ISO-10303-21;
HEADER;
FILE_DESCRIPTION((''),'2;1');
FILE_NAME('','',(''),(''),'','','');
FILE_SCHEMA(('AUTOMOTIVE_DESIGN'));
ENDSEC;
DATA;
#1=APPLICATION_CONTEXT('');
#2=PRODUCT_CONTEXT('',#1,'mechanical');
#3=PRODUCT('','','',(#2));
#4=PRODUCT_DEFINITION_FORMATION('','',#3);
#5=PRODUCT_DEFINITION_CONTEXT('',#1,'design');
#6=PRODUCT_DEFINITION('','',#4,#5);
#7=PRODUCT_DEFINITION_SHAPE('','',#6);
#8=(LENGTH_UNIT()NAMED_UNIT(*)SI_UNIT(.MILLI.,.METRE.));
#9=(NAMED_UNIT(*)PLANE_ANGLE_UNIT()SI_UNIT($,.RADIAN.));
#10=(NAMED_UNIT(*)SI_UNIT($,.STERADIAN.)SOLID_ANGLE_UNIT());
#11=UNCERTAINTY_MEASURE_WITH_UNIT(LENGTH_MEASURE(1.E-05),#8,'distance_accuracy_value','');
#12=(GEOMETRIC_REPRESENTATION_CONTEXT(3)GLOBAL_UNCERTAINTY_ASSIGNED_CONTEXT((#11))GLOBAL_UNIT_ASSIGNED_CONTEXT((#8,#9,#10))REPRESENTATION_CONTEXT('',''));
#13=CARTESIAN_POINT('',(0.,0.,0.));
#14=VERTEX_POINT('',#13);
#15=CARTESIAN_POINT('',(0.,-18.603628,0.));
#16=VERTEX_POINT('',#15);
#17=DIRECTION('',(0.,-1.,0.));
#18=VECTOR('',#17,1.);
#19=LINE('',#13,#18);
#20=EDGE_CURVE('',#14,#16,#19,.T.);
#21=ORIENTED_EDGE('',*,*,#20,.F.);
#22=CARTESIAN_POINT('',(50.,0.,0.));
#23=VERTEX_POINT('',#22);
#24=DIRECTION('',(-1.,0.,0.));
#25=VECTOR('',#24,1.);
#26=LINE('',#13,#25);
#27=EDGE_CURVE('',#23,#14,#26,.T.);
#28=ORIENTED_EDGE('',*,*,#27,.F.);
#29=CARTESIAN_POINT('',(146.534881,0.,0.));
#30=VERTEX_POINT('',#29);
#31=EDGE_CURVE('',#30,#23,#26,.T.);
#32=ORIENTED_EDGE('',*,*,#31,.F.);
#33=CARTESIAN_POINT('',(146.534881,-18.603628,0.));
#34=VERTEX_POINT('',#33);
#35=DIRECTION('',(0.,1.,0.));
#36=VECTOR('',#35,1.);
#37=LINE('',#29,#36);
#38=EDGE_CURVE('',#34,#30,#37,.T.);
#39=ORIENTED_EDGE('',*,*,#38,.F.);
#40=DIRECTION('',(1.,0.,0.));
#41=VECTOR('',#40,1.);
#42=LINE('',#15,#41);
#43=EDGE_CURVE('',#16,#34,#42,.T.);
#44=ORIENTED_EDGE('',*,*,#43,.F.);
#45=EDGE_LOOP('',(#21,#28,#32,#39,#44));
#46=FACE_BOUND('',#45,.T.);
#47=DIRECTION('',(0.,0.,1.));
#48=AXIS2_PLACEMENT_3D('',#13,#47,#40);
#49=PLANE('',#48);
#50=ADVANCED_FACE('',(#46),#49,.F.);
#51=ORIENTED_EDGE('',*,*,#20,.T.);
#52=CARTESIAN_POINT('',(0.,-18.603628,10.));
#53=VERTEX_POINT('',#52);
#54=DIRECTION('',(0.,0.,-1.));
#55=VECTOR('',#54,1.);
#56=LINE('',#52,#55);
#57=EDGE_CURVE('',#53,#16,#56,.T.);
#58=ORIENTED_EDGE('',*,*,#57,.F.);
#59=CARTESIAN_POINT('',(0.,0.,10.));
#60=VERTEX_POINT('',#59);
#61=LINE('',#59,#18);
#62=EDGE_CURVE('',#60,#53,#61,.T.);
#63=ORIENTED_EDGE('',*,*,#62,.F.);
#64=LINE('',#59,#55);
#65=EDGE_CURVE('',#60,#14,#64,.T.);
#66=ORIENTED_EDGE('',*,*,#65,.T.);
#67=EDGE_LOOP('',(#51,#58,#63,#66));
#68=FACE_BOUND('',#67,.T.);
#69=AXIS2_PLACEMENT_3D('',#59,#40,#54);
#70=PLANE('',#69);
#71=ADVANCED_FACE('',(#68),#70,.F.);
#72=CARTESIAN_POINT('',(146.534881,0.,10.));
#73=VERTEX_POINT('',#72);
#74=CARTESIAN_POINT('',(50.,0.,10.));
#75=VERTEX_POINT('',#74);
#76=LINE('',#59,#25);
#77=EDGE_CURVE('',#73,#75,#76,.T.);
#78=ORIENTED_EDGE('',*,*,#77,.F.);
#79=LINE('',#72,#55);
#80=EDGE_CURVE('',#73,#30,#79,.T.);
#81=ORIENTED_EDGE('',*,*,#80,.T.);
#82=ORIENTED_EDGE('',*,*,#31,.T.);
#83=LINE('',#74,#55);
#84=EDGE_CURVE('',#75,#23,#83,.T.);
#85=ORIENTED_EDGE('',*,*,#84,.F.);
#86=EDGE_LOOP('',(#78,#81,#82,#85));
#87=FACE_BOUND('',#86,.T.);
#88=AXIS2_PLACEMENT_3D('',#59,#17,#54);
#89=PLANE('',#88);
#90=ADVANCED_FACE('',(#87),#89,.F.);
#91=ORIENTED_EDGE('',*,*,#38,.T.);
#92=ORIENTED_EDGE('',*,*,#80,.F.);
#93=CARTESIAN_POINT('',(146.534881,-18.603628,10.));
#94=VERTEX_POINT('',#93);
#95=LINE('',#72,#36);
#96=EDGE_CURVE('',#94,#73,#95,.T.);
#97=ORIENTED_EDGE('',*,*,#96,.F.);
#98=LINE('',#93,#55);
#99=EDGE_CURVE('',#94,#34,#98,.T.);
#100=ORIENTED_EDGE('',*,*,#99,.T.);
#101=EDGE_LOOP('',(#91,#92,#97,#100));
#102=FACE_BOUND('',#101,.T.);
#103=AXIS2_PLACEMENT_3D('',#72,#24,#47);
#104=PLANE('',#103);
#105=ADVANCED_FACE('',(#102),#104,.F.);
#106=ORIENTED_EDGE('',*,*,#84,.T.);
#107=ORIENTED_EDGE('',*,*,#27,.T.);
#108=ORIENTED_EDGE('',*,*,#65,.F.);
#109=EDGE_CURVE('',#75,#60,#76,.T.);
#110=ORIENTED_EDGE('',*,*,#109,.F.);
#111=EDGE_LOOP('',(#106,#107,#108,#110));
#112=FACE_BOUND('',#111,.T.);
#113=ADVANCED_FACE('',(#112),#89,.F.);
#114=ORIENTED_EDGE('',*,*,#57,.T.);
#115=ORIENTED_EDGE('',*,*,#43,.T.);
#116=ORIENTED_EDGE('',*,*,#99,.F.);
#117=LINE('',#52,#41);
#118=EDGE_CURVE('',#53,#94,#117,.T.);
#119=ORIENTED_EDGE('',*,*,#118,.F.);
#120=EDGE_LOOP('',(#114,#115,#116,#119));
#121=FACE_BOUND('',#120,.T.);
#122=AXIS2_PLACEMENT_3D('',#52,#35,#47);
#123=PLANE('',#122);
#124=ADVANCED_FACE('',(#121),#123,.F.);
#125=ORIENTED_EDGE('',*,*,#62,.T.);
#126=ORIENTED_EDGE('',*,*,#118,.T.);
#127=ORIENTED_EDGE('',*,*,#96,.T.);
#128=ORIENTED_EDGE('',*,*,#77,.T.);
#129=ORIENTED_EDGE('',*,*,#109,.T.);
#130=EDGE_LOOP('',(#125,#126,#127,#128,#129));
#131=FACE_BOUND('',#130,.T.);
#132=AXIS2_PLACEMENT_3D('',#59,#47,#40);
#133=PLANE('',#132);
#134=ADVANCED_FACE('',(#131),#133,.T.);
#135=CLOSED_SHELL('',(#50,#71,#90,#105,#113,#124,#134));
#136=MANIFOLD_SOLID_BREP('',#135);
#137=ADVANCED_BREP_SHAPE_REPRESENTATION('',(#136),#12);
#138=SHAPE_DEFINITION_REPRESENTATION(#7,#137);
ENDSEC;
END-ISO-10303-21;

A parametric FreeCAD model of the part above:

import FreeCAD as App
import Part
import Sketcher

V = App.Vector
Q = App.Units.Quantity

doc = App.newDocument("Part")
params = doc.addObject("Spreadsheet::Sheet", "Params")
for row, (alias, value) in enumerate([
    ("pad1_length", "10 mm"),
], start=1):
    params.set(f"A{row}", alias)
    params.set(f"B{row}", "=" + value)
    params.setAlias(f"B{row}", alias)

body = doc.addObject("PartDesign::Body", "Body")

sketch1 = body.newObject("Sketcher::SketchObject", "Sketch")
sketch1.AttachmentSupport = (doc.getObject("XY_Plane"), [""])
sketch1.MapMode = "FlatFace"
sketch1.addGeometry([
    Part.LineSegment(V(0, 0, 0), V(0, -18.603628, 0)),
    Part.LineSegment(V(0, -18.603628, 0), V(146.534881, -18.603628, 0)),
    Part.LineSegment(V(146.534881, -18.603628, 0), V(146.534881, 0, 0)),
    Part.LineSegment(V(146.534881, 0, 0), V(0, 0, 0)),
], False)
sketch1.addConstraint([
    Sketcher.Constraint("Coincident", 0, 2, 1, 1),
    Sketcher.Constraint("Coincident", 1, 2, 2, 1),
    Sketcher.Constraint("Coincident", 2, 2, 3, 1),
    Sketcher.Constraint("Coincident", 3, 2, 0, 1),
    Sketcher.Constraint("Vertical", 0),
    Sketcher.Constraint("Horizontal", 1),
    Sketcher.Constraint("Vertical", 2),
    Sketcher.Constraint("Horizontal", 3),
    Sketcher.Constraint("Coincident", 3, 2, -1, 1),
    Sketcher.Constraint("DistanceX", 1, 1, 1, 2, Q("146.534881 mm")),
    Sketcher.Constraint("DistanceY", 0, 2, 0, 1, Q("18.603628 mm")),
])
pad1 = body.newObject("PartDesign::Pad", "Pad")
pad1.Profile = sketch1
pad1.setExpression("Length", "Params.pad1_length")

doc.recompute()
